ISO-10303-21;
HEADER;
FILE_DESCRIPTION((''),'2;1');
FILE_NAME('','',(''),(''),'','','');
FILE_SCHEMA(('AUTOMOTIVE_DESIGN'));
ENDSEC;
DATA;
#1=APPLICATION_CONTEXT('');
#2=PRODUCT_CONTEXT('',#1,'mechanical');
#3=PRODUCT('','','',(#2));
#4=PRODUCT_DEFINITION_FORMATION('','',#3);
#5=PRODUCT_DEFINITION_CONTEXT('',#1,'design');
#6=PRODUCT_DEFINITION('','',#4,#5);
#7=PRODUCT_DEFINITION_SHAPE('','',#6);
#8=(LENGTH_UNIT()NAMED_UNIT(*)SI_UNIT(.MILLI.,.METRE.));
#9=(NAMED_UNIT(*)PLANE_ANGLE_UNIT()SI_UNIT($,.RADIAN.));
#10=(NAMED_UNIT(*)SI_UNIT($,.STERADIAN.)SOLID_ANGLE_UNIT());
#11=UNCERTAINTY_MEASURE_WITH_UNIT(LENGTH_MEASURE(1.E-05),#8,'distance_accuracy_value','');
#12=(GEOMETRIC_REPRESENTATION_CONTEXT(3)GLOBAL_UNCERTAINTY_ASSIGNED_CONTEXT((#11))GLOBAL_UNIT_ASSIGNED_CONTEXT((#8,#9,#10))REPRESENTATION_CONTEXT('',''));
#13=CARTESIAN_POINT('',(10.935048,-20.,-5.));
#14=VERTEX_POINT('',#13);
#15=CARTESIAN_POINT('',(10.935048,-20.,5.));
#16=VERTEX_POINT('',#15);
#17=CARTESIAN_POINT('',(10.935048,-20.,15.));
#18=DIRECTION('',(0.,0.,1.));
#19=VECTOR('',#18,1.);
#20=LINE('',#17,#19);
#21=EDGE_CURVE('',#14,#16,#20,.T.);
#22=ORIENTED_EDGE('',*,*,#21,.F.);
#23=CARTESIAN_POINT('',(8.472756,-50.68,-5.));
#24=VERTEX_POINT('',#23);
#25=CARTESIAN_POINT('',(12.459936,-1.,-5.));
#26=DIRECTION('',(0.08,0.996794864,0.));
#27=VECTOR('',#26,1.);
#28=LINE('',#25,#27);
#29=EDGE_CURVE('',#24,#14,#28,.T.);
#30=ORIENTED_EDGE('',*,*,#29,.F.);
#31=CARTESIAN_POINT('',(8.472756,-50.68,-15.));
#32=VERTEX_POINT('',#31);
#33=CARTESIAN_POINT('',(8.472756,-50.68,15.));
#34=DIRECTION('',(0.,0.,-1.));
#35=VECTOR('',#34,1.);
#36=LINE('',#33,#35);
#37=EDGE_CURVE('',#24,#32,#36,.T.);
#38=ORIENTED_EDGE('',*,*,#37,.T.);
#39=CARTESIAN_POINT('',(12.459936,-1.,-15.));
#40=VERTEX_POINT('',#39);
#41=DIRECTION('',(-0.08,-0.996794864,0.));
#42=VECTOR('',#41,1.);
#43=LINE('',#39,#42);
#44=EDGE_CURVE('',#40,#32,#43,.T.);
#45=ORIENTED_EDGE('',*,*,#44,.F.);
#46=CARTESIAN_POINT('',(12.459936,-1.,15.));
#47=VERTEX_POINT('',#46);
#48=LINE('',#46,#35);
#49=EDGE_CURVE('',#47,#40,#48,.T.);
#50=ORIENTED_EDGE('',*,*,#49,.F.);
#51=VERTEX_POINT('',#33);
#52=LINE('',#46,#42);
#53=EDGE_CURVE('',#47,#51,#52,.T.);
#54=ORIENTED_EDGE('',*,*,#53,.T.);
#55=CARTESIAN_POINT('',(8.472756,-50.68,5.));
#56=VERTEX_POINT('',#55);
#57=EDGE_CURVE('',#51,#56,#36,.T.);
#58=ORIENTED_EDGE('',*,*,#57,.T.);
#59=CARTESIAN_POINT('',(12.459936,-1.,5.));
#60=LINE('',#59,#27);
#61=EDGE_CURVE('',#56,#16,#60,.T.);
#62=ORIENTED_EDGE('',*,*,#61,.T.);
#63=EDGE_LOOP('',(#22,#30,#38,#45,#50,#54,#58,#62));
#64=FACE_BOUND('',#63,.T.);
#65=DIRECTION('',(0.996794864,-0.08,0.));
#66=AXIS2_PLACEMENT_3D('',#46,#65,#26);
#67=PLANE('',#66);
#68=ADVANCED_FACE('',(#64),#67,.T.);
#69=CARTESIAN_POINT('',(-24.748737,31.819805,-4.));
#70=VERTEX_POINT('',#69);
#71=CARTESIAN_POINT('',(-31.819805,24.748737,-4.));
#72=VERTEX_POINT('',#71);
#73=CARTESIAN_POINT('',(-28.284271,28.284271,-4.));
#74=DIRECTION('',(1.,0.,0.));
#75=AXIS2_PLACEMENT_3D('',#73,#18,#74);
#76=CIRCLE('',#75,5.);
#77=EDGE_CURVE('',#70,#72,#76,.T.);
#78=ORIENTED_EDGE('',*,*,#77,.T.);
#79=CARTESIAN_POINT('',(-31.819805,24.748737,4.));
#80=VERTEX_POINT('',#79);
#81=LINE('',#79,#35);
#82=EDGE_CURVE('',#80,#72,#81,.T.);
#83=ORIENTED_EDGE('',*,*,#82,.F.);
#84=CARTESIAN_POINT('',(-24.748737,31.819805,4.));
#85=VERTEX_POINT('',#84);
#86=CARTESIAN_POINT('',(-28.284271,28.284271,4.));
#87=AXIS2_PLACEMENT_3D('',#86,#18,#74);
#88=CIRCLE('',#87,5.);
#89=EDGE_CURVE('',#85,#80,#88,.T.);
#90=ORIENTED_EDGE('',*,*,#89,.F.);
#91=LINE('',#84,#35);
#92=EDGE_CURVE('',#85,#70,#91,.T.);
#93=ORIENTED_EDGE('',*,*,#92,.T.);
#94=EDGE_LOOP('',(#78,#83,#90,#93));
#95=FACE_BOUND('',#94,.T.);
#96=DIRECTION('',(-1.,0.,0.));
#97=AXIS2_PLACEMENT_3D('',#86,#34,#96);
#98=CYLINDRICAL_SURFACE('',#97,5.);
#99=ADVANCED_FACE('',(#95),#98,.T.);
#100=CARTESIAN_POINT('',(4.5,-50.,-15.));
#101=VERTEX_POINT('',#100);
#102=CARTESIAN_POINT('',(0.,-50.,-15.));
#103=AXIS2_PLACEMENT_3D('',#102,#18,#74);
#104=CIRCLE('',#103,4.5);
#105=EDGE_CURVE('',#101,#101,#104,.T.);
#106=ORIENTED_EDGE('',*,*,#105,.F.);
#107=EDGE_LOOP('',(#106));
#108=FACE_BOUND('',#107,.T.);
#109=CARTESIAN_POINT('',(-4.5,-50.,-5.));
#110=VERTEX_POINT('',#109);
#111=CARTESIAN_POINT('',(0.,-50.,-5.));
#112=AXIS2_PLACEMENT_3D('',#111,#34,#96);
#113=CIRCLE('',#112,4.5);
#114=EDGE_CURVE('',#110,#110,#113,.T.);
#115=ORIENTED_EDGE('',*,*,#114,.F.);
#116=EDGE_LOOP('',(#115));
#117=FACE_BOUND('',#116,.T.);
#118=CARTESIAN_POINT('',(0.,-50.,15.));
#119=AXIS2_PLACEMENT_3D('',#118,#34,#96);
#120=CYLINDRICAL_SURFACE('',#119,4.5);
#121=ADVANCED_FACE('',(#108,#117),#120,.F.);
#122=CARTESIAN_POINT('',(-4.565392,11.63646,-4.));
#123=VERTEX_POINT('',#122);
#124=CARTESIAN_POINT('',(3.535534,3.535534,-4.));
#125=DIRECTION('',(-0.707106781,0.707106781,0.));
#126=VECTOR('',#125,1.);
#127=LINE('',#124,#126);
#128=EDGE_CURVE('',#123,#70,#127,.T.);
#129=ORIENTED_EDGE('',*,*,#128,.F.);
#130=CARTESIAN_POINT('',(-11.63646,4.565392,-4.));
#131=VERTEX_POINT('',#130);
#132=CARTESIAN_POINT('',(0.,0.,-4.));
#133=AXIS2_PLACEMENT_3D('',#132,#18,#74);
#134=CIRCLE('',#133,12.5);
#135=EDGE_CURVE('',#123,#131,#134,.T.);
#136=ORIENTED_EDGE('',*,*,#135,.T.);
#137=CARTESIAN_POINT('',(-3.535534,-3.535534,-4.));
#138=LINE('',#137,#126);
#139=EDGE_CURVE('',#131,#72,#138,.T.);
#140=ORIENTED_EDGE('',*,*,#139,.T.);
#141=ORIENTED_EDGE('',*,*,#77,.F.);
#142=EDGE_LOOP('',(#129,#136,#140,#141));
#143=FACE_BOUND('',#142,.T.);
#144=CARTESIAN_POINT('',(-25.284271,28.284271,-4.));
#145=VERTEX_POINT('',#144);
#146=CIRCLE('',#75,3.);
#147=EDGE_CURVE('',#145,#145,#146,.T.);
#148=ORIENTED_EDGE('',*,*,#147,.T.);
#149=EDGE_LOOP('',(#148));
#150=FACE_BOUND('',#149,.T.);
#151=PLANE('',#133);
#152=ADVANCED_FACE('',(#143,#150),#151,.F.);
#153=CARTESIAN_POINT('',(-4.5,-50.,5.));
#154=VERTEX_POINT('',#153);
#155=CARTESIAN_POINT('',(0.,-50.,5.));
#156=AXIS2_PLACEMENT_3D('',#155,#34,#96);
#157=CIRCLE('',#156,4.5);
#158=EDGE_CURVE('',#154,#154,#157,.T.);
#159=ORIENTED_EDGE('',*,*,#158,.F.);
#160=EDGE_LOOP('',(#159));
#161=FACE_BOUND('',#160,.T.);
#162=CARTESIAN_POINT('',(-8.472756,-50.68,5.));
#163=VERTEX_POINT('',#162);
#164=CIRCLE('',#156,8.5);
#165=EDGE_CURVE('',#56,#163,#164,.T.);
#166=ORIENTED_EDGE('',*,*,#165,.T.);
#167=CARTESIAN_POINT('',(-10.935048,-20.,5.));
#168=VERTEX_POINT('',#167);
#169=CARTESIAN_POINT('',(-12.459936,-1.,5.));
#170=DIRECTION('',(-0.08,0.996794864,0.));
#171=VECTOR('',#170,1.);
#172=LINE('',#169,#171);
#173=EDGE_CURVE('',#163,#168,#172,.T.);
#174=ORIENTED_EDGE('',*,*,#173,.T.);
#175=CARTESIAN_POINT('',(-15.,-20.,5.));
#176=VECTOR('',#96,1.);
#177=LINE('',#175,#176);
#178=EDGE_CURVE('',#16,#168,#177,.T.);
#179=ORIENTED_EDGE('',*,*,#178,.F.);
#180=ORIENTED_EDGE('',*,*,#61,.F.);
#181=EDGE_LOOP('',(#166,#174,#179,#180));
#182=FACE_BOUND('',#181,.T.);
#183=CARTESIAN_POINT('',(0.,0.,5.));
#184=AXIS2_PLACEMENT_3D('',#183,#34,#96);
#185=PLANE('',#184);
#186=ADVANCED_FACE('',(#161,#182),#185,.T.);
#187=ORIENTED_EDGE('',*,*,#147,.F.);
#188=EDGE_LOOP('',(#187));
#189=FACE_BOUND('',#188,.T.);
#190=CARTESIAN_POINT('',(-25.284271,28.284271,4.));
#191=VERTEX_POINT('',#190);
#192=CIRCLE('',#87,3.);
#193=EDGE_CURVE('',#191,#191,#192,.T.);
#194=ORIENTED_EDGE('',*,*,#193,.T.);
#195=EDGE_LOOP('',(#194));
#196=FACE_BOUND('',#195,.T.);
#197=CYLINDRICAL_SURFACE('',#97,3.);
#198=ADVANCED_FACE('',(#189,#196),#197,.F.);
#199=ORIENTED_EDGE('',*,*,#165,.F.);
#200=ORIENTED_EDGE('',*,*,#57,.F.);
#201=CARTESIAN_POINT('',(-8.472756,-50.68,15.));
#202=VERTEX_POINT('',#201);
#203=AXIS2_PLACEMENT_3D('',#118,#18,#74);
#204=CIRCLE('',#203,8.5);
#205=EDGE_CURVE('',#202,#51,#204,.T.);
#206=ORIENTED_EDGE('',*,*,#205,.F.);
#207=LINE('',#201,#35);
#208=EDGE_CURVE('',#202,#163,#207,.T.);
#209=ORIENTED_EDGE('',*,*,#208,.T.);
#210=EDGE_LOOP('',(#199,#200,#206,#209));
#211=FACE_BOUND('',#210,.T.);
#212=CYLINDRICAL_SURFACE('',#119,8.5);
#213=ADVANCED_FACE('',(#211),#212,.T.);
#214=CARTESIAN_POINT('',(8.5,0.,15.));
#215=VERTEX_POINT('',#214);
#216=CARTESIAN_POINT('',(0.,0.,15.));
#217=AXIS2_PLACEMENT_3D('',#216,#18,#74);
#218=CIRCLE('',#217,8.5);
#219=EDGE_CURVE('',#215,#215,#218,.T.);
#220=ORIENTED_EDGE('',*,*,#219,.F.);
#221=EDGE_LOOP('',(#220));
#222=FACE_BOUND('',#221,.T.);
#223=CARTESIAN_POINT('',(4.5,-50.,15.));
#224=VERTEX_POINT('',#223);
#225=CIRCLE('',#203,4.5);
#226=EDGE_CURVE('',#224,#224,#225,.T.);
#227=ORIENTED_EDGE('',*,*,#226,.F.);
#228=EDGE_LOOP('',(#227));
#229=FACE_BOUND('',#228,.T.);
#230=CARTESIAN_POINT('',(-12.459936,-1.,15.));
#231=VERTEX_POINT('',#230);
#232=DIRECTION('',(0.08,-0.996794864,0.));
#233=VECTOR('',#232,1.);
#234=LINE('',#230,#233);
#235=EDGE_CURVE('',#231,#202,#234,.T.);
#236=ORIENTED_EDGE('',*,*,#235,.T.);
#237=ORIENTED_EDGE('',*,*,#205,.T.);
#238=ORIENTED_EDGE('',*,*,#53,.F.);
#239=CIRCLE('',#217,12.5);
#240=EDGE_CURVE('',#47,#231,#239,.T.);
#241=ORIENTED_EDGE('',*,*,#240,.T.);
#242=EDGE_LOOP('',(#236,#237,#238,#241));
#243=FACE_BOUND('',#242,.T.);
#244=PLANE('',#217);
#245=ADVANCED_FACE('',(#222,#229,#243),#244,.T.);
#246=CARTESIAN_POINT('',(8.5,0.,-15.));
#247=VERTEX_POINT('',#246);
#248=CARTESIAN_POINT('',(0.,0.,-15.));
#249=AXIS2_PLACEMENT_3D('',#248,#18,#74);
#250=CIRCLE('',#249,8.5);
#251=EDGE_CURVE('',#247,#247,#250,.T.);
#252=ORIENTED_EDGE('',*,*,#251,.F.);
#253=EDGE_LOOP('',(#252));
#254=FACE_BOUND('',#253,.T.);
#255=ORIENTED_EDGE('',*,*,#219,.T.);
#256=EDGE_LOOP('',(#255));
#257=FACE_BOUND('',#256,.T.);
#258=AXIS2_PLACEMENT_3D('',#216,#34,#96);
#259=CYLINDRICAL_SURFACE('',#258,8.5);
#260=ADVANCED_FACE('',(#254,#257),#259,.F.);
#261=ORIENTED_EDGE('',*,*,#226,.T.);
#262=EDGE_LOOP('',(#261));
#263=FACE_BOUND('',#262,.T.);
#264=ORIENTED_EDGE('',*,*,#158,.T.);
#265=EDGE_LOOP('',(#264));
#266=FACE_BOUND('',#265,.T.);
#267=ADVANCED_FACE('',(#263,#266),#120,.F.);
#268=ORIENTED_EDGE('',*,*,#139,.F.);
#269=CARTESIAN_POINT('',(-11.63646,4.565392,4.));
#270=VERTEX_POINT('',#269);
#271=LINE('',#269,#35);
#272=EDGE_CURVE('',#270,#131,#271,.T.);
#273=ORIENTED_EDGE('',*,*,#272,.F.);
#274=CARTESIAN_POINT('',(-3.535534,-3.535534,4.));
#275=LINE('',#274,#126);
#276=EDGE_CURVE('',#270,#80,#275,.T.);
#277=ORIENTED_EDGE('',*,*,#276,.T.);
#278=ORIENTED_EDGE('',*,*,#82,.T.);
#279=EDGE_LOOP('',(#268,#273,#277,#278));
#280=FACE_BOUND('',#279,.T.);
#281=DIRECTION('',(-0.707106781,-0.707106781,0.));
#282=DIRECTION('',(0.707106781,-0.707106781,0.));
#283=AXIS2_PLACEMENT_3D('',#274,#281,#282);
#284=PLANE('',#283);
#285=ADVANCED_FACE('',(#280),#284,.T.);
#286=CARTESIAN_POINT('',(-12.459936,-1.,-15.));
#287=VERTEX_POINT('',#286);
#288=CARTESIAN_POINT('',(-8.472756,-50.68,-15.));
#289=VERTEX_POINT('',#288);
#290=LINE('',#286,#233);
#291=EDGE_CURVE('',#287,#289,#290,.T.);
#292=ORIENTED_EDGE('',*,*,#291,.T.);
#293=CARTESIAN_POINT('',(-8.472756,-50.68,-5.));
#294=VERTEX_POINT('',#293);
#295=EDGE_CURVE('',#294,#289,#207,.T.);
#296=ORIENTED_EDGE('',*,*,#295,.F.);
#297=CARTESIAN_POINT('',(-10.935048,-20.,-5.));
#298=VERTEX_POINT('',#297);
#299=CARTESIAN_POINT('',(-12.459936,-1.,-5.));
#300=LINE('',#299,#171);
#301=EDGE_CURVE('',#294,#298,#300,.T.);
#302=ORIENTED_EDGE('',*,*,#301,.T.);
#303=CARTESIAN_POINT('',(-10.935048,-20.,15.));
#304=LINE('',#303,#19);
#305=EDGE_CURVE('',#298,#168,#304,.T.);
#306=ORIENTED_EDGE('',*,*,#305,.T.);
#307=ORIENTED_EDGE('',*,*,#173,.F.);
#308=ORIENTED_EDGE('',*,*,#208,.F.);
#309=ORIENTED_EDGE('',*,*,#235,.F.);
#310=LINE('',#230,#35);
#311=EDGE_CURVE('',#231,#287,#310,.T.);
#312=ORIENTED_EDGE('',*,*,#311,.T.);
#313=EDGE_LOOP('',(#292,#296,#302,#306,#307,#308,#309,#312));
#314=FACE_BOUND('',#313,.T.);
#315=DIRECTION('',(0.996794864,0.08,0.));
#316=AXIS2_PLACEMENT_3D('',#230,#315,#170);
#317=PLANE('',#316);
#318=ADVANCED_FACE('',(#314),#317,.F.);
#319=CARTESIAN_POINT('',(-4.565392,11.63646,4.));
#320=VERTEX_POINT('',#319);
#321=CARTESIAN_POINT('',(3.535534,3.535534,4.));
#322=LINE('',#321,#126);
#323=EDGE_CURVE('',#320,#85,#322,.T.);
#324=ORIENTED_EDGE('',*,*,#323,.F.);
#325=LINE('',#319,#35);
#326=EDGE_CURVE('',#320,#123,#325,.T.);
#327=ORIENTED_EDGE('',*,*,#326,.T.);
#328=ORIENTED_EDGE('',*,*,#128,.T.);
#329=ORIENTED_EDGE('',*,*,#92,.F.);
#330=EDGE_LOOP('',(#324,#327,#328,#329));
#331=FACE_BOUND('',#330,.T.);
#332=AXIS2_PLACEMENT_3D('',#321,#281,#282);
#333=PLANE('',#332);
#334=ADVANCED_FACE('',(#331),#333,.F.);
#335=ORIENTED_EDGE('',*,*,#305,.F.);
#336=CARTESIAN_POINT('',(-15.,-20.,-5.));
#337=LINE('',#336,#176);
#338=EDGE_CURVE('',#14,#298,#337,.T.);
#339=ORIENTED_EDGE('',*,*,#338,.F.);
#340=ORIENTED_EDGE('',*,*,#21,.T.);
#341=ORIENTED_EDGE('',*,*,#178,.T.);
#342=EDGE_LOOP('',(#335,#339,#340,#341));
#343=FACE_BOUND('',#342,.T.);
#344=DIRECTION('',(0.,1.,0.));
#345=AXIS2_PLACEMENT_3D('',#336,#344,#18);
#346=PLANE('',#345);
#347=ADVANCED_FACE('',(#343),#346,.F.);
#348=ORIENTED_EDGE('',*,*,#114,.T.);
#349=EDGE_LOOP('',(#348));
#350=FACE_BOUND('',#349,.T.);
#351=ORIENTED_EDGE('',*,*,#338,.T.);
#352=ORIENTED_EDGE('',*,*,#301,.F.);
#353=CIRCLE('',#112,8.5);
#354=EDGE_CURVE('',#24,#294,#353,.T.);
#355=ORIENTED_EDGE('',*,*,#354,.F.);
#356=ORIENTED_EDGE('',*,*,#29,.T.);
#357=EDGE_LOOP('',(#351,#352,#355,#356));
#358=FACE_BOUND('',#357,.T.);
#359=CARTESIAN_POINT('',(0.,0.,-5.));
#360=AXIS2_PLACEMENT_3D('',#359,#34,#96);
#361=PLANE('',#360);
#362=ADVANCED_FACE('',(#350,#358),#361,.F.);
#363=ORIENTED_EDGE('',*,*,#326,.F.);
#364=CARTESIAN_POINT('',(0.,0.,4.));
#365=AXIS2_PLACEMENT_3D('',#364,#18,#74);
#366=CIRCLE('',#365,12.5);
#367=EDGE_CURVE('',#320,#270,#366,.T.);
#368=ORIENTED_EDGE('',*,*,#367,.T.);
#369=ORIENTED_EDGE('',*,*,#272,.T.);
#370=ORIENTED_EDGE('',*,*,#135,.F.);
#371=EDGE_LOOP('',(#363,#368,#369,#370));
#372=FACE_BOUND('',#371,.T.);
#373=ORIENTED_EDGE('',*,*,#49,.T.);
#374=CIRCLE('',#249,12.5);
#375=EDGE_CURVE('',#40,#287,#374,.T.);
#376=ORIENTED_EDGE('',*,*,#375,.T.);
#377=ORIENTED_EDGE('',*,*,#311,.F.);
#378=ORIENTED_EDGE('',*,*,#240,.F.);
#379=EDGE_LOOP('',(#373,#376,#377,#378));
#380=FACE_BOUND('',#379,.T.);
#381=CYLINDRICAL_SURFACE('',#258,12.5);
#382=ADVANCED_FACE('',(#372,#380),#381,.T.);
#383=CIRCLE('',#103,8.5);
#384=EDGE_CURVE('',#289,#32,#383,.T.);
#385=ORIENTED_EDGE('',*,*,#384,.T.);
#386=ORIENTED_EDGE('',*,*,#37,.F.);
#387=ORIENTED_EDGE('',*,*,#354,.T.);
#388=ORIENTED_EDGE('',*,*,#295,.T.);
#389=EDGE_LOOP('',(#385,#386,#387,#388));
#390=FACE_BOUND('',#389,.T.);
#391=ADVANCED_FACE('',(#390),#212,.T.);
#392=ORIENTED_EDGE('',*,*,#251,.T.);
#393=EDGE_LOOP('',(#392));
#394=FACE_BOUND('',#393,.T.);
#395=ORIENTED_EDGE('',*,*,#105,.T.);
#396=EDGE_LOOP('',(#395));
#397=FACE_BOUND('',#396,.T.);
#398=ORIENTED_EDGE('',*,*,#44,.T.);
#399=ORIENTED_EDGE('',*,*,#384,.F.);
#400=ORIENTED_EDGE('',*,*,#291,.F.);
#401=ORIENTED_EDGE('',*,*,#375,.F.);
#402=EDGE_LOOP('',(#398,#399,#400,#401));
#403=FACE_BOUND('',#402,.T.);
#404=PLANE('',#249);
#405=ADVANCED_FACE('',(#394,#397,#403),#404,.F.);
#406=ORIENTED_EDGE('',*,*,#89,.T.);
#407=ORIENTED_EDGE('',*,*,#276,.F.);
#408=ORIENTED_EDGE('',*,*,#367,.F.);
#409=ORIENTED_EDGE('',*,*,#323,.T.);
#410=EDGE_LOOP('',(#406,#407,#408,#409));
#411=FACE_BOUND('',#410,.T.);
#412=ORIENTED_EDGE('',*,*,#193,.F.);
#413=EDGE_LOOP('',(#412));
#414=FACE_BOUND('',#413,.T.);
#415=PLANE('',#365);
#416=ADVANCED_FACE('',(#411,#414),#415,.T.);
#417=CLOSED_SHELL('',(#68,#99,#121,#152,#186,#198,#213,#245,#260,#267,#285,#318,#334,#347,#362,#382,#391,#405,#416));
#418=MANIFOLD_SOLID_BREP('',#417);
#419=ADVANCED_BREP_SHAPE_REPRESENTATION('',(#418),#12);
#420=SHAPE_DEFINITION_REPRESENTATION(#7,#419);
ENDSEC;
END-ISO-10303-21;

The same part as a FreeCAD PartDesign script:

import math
import FreeCAD as App
import Part
import Sketcher
from FreeCAD import Vector
Q = App.Units.Quantity


def add_polygon(sketch, points):
    """Adds a closed chain of lines whose ends are joined by coincident constraints."""
    first, n = sketch.GeometryCount, len(points)
    for a, b in zip(points, points[1:] + points[:1]):
        sketch.addGeometry(Part.LineSegment(App.Vector(*a, 0), App.Vector(*b, 0)), False)
    for i in range(n):
        sketch.addConstraint(Sketcher.Constraint("Coincident", first + i, 2, first + (i + 1) % n, 1))

doc = App.newDocument("Part")
body = doc.addObject("PartDesign::Body", "Body")

# Sketch on XY plane
sketch1 = doc.addObject("Sketcher::SketchObject", "Sketch")
body.addObject(sketch1)
sketch1.AttachmentSupport = (doc.XY_Plane, [""])
sketch1.MapMode = "FlatFace"
sketch1.addGeometry(Part.ArcOfCircle(Part.Circle(Vector(0, 0, 0), Vector(0, 0, 1), 12.5), math.radians(-5), math.radians(185)), False)
sketch1.addGeometry(Part.LineSegment(Vector(-12.5, -1, 0), Vector(-8.5, -50.7, 0)), False)
sketch1.addGeometry(Part.ArcOfCircle(Part.Circle(Vector(0, -50, 0), Vector(0, 0, 1), 8.5), math.radians(-175), math.radians(-5)), False)
sketch1.addGeometry(Part.LineSegment(Vector(8.5, -50.7, 0), Vector(12.5, -1, 0)), False)
sketch1.addGeometry(Part.Circle(Vector(0, -50, 0), Vector(0, 0, 1), 4.5), False)
sketch1.addGeometry(Part.Circle(Vector(0, 0, 0), Vector(0, 0, 1), 8.5), False)
sketch1.addConstraint(Sketcher.Constraint("Tangent", 0, 2, 1, 1))
sketch1.addConstraint(Sketcher.Constraint("Tangent", 1, 2, 2, 1))
sketch1.addConstraint(Sketcher.Constraint("Tangent", 2, 2, 3, 1))
sketch1.addConstraint(Sketcher.Constraint("Tangent", 3, 2, 0, 1))
sketch1.addConstraint(Sketcher.Constraint("Coincident", 0, 3, -1, 1))
sketch1.addConstraint(Sketcher.Constraint("Coincident", 5, 3, -1, 1))
sketch1.addConstraint(Sketcher.Constraint("Coincident", 4, 3, 2, 3))
sketch1.addConstraint(Sketcher.Constraint("Equal", 2, 5))
sketch1.addConstraint(Sketcher.Constraint("PointOnObject", 2, 3, -2))
sketch1.addConstraint(Sketcher.Constraint("Diameter", 4, Q("9 mm")))
sketch1.addConstraint(Sketcher.Constraint("Diameter", 5, Q("17 mm")))
sketch1.addConstraint(Sketcher.Constraint("Radius", 0, Q("12.5 mm")))
sketch1.addConstraint(Sketcher.Constraint("DistanceY", 2, 3, -1, 1, Q("50 mm")))
pad1 = doc.addObject("PartDesign::Pad", "Pad")
body.addObject(pad1)
pad1.Profile = sketch1
pad1.Length = 30
pad1.Midplane = True

# Sketch on XY plane
sketch2 = doc.addObject("Sketcher::SketchObject", "Sketch001")
body.addObject(sketch2)
sketch2.AttachmentSupport = (doc.XY_Plane, [""])
sketch2.MapMode = "FlatFace"
add_polygon(sketch2, [(-15, -20), (-15, -80), (15, -80), (15, -20)])  # lines 0-3
sketch2.addConstraint(Sketcher.Constraint("Vertical", 0))
sketch2.addConstraint(Sketcher.Constraint("Horizontal", 1))
sketch2.addConstraint(Sketcher.Constraint("Vertical", 2))
sketch2.addConstraint(Sketcher.Constraint("Horizontal", 3))
sketch2.addConstraint(Sketcher.Constraint("DistanceX", 1, 1, 1, 2, Q("30 mm")))
sketch2.addConstraint(Sketcher.Constraint("DistanceY", 0, 2, 0, 1, Q("60 mm")))
sketch2.addConstraint(Sketcher.Constraint("DistanceX", 0, 2, -1, 1, Q("15 mm")))
sketch2.addConstraint(Sketcher.Constraint("DistanceY", 0, 2, -1, 1, Q("80 mm")))
pocket1 = doc.addObject("PartDesign::Pocket", "Pocket")
body.addObject(pocket1)
pocket1.Profile = sketch2
pocket1.Length = 10
pocket1.Midplane = True

# Sketch on XY plane
sketch3 = doc.addObject("Sketcher::SketchObject", "Sketch002")
body.addObject(sketch3)
sketch3.AttachmentSupport = (doc.XY_Plane, [""])
sketch3.MapMode = "FlatFace"
sketch3.addGeometry(Part.LineSegment(Vector(-31.8, 24.7, 0), Vector(-11.6, 4.6, 0)), False)
sketch3.addGeometry(Part.ArcOfCircle(Part.Circle(Vector(0, 0, 0), Vector(0, 0, 1), 12.5), math.radians(111), math.radians(159)), False)
sketch3.addGeometry(Part.LineSegment(Vector(-4.6, 11.6, 0), Vector(-24.7, 31.8, 0)), False)
sketch3.addGeometry(Part.ArcOfCircle(Part.Circle(Vector(-28.3, 28.3, 0), Vector(0, 0, 1), 5), math.radians(45), math.radians(225)), False)
sketch3.addGeometry(Part.Circle(Vector(-28.3, 28.3, 0), Vector(0, 0, 1), 3), False)
sketch3.addConstraint(Sketcher.Constraint("Coincident", 0, 2, 1, 2))
sketch3.addConstraint(Sketcher.Constraint("Coincident", 1, 1, 2, 1))
sketch3.addConstraint(Sketcher.Constraint("Tangent", 2, 2, 3, 1))
sketch3.addConstraint(Sketcher.Constraint("Tangent", 3, 2, 0, 1))
sketch3.addConstraint(Sketcher.Constraint("Coincident", 1, 3, -1, 1))
sketch3.addConstraint(Sketcher.Constraint("Coincident", 4, 3, 3, 3))
sketch3.addConstraint(Sketcher.Constraint("Parallel", 0, 2))
sketch3.addConstraint(Sketcher.Constraint("Equal", 0, 2))
sketch3.addConstraint(Sketcher.Constraint("Diameter", 4, Q("6 mm")))
sketch3.addConstraint(Sketcher.Constraint("Radius", 3, Q("5 mm")))
sketch3.addConstraint(Sketcher.Constraint("Radius", 1, Q("12.5 mm")))
sketch3.addConstraint(Sketcher.Constraint("Angle", 0, Q("-45 deg")))
sketch3.addConstraint(Sketcher.Constraint("Distance", 0, Q("28.543561 mm")))
pad2 = doc.addObject("PartDesign::Pad", "Pad001")
body.addObject(pad2)
pad2.Profile = sketch3
pad2.Length = 8
pad2.Midplane = True

doc.recompute()
